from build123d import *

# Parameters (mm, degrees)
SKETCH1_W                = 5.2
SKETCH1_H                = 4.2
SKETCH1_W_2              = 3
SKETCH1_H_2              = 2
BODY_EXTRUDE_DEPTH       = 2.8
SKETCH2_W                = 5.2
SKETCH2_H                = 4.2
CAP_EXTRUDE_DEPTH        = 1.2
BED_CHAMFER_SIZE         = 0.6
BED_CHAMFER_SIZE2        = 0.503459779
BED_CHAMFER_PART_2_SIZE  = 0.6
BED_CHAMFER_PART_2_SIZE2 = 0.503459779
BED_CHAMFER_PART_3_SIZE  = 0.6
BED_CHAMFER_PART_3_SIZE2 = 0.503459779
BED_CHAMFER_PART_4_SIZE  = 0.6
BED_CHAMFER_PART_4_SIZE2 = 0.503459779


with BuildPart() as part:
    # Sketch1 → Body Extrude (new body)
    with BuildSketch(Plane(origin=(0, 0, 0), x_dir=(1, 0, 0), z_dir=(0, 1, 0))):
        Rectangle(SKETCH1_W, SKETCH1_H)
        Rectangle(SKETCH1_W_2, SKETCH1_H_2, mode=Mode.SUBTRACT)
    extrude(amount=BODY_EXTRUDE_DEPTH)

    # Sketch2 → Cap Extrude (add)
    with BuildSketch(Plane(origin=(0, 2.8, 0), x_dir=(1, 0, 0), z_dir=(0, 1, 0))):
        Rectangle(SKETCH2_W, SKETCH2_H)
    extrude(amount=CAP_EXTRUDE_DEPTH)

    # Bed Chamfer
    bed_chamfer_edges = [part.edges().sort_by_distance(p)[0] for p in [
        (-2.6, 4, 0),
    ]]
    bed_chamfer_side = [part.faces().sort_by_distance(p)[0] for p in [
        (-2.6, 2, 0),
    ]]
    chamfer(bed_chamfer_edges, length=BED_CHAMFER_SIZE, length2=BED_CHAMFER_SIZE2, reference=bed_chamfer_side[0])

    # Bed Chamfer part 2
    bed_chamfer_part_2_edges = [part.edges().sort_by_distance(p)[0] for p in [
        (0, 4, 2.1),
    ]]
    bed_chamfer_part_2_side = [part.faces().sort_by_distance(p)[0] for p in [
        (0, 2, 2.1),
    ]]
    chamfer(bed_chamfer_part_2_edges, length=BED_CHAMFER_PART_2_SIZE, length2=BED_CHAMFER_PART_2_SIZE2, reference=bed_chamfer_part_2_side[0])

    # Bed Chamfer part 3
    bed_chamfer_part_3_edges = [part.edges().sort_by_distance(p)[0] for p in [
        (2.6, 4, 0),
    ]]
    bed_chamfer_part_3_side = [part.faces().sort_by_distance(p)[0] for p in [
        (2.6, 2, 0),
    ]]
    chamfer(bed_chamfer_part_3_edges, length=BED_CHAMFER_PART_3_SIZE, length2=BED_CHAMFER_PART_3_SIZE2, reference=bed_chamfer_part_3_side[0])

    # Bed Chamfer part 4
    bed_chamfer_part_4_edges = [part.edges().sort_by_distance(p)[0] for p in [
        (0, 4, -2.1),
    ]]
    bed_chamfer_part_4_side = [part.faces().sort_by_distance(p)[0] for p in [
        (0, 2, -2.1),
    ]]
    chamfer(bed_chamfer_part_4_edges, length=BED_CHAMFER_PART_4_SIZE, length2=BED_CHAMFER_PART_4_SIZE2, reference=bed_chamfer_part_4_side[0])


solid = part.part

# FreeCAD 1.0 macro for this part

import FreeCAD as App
import Part
import Sketcher
Q = App.Units.Quantity


def edges_at(feature, points):
    """Names of the edges that pass closest to the given points."""
    edges = feature.Shape.Edges
    near = lambda p: min(range(len(edges)), key=lambda i: edges[i].distToShape(Part.Vertex(*p))[0])
    return sorted({f"Edge{near(p) + 1}" for p in points})

doc = App.newDocument("Part")
params = doc.addObject("Spreadsheet::Sheet", "Params")
for row, (alias, value) in enumerate([
    ("sketch1_width", "3 mm"),
    ("sketch1_height", "2 mm"),
    ("sketch1_width2", "5.2 mm"),
    ("sketch1_height2", "4.2 mm"),
    ("pad1_length", "2.8 mm"),
    ("sketch2_width", "5.2 mm"),
    ("sketch2_height", "4.2 mm"),
    ("pad2_length", "1.2 mm"),
    ("chamfer_size", "0.6 mm"),
    ("chamfer_size2", "0.50346 mm"),
    ("chamfer2_size", "0.6 mm"),
    ("chamfer2_size2", "0.50346 mm"),
    ("chamfer3_size", "0.6 mm"),
    ("chamfer3_size2", "0.50346 mm"),
    ("chamfer4_size", "0.6 mm"),
    ("chamfer4_size2", "0.50346 mm"),
], start=1):
    params.set(f"A{row}", alias)
    params.set(f"B{row}", "=" + value)
    params.setAlias(f"B{row}", alias)

body = doc.addObject("PartDesign::Body", "Body")

# Sketch on XZ plane
sketch1 = body.newObject("Sketcher::SketchObject", "Sketch")
sketch1.AttachmentSupport = (doc.getObject("XZ_Plane"), [""])
sketch1.MapMode = "FlatFace"
sketch1.addGeometry([
    Part.LineSegment(App.Vector(-2.6, -2.1, 0), App.Vector(-2.6, 2.1, 0)),  # 0
    Part.LineSegment(App.Vector(-2.6, 2.1, 0), App.Vector(2.6, 2.1, 0)),  # 1
    Part.LineSegment(App.Vector(2.6, 2.1, 0), App.Vector(2.6, -2.1, 0)),  # 2
    Part.LineSegment(App.Vector(2.6, -2.1, 0), App.Vector(-2.6, -2.1, 0)),  # 3
    Part.LineSegment(App.Vector(1.5, 1, 0), App.Vector(-1.5, 1, 0)),  # 4
    Part.LineSegment(App.Vector(-1.5, 1, 0), App.Vector(-1.5, -1, 0)),  # 5
    Part.LineSegment(App.Vector(-1.5, -1, 0), App.Vector(1.5, -1, 0)),  # 6
    Part.LineSegment(App.Vector(1.5, -1, 0), App.Vector(1.5, 1, 0)),  # 7
], False)
sketch1.addConstraint([
    Sketcher.Constraint("Coincident", 0, 2, 1, 1),
    Sketcher.Constraint("Coincident", 1, 2, 2, 1),
    Sketcher.Constraint("Coincident", 2, 2, 3, 1),
    Sketcher.Constraint("Coincident", 3, 2, 0, 1),
    Sketcher.Constraint("Coincident", 4, 2, 5, 1),
    Sketcher.Constraint("Coincident", 5, 2, 6, 1),
    Sketcher.Constraint("Coincident", 6, 2, 7, 1),
    Sketcher.Constraint("Coincident", 7, 2, 4, 1),
    Sketcher.Constraint("Vertical", 0),
    Sketcher.Constraint("Horizontal", 1),
    Sketcher.Constraint("Vertical", 2),
    Sketcher.Constraint("Horizontal", 3),
    Sketcher.Constraint("Horizontal", 4),
    Sketcher.Constraint("Vertical", 5),
    Sketcher.Constraint("Horizontal", 6),
    Sketcher.Constraint("Vertical", 7),
    Sketcher.Constraint("Symmetric", 0, 2, 2, 2, -1, 1),
    Sketcher.Constraint("Symmetric", 4, 2, 6, 2, -1, 1),
    Sketcher.Constraint("DistanceX", 4, 2, 4, 1, Q("3 mm")),
    Sketcher.Constraint("DistanceY", 5, 2, 5, 1, Q("2 mm")),
    Sketcher.Constraint("DistanceX", 1, 1, 1, 2, Q("5.2 mm")),
    Sketcher.Constraint("DistanceY", 0, 1, 0, 2, Q("4.2 mm")),
])
sketch1.setExpression("Constraints[18]", "Params.sketch1_width")
sketch1.setExpression("Constraints[19]", "Params.sketch1_height")
sketch1.setExpression("Constraints[20]", "Params.sketch1_width2")
sketch1.setExpression("Constraints[21]", "Params.sketch1_height2")
pad1 = body.newObject("PartDesign::Pad", "Pad")
pad1.Profile = sketch1
pad1.setExpression("Length", "Params.pad1_length")
pad1.Reversed = True

# Sketch on XZ plane
sketch2 = body.newObject("Sketcher::SketchObject", "Sketch001")
sketch2.AttachmentSupport = (doc.getObject("XZ_Plane"), [""])
sketch2.MapMode = "FlatFace"
sketch2.AttachmentOffset = App.Placement(App.Vector(0, 0, -2.8), App.Rotation())
sketch2.addGeometry([
    Part.LineSegment(App.Vector(-2.6, -2.1, 0), App.Vector(-2.6, 2.1, 0)),
    Part.LineSegment(App.Vector(-2.6, 2.1, 0), App.Vector(2.6, 2.1, 0)),
    Part.LineSegment(App.Vector(2.6, 2.1, 0), App.Vector(2.6, -2.1, 0)),
    Part.LineSegment(App.Vector(2.6, -2.1, 0), App.Vector(-2.6, -2.1, 0)),
], False)
sketch2.addConstraint([
    Sketcher.Constraint("Coincident", 0, 2, 1, 1),
    Sketcher.Constraint("Coincident", 1, 2, 2, 1),
    Sketcher.Constraint("Coincident", 2, 2, 3, 1),
    Sketcher.Constraint("Coincident", 3, 2, 0, 1),
    Sketcher.Constraint("Vertical", 0),
    Sketcher.Constraint("Horizontal", 1),
    Sketcher.Constraint("Vertical", 2),
    Sketcher.Constraint("Horizontal", 3),
    Sketcher.Constraint("Symmetric", 0, 2, 2, 2, -1, 1),
    Sketcher.Constraint("DistanceX", 1, 1, 1, 2, Q("5.2 mm")),
    Sketcher.Constraint("DistanceY", 0, 1, 0, 2, Q("4.2 mm")),
])
sketch2.setExpression("Constraints[9]", "Params.sketch2_width")
sketch2.setExpression("Constraints[10]", "Params.sketch2_height")
pad2 = body.newObject("PartDesign::Pad", "Pad001")
pad2.Profile = sketch2
pad2.setExpression("Length", "Params.pad2_length")
pad2.Reversed = True
doc.recompute()

chamfer = body.newObject("PartDesign::Chamfer", "Chamfer")
chamfer.Base = (pad2, edges_at(pad2, [(-2.6, 4, 0)]))
chamfer.ChamferType = "Two distances"
chamfer.setExpression("Size", "Params.chamfer_size")
chamfer.setExpression("Size2", "Params.chamfer_size2")
doc.recompute()

chamfer2 = body.newObject("PartDesign::Chamfer", "Chamfer001")
chamfer2.Base = (chamfer, edges_at(chamfer, [(0.252, 4, 2.1)]))
chamfer2.ChamferType = "Two distances"
chamfer2.setExpression("Size", "Params.chamfer2_size")
chamfer2.setExpression("Size2", "Params.chamfer2_size2")
doc.recompute()

chamfer3 = body.newObject("PartDesign::Chamfer", "Chamfer002")
chamfer3.Base = (chamfer2, edges_at(chamfer2, [(2.6, 4, -0.252)]))
chamfer3.ChamferType = "Two distances"
chamfer3.setExpression("Size", "Params.chamfer3_size")
chamfer3.setExpression("Size2", "Params.chamfer3_size2")
doc.recompute()

chamfer4 = body.newObject("PartDesign::Chamfer", "Chamfer003")
chamfer4.Base = (chamfer3, edges_at(chamfer3, [(0, 4, -2.1)]))
chamfer4.ChamferType = "Two distances"
chamfer4.setExpression("Size", "Params.chamfer4_size")
chamfer4.setExpression("Size2", "Params.chamfer4_size2")

doc.recompute()
